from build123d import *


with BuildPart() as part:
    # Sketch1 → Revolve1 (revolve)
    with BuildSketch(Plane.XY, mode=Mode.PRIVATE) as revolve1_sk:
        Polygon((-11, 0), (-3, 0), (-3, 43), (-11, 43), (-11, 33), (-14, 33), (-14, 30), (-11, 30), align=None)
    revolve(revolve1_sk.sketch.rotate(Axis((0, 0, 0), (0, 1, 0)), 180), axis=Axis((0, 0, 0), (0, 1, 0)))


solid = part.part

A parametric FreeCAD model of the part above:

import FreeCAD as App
import Part
import Sketcher

V = App.Vector
Q = App.Units.Quantity

doc = App.newDocument("Part")
body = doc.addObject("PartDesign::Body", "Body")

sketch1 = body.newObject("Sketcher::SketchObject", "Sketch")
sketch1.AttachmentSupport = (doc.getObject("XY_Plane"), [""])
sketch1.MapMode = "FlatFace"
sketch1.addGeometry([
    Part.LineSegment(V(-11, 0, 0), V(-3, 0, 0)),
    Part.LineSegment(V(-3, 0, 0), V(-3, 43, 0)),
    Part.LineSegment(V(-3, 43, 0), V(-11, 43, 0)),
    Part.LineSegment(V(-11, 43, 0), V(-11, 33, 0)),
    Part.LineSegment(V(-11, 33, 0), V(-14, 33, 0)),
    Part.LineSegment(V(-14, 33, 0), V(-14, 30, 0)),
    Part.LineSegment(V(-14, 30, 0), V(-11, 30, 0)),
    Part.LineSegment(V(-11, 30, 0), V(-11, 0, 0)),
], False)
sketch1.addConstraint([
    Sketcher.Constraint("Coincident", 0, 2, 1, 1),
    Sketcher.Constraint("Coincident", 1, 2, 2, 1),
    Sketcher.Constraint("Coincident", 2, 2, 3, 1),
    Sketcher.Constraint("Coincident", 3, 2, 4, 1),
    Sketcher.Constraint("Coincident", 4, 2, 5, 1),
    Sketcher.Constraint("Coincident", 5, 2, 6, 1),
    Sketcher.Constraint("Coincident", 6, 2, 7, 1),
    Sketcher.Constraint("Coincident", 7, 2, 0, 1),
    Sketcher.Constraint("Horizontal", 0),
    Sketcher.Constraint("Vertical", 1),
    Sketcher.Constraint("Horizontal", 2),
    Sketcher.Constraint("Vertical", 3),
    Sketcher.Constraint("Horizontal", 4),
    Sketcher.Constraint("Vertical", 5),
    Sketcher.Constraint("Horizontal", 6),
    Sketcher.Constraint("Vertical", 7),
    Sketcher.Constraint("PointOnObject", 0, 2, -1),
    Sketcher.Constraint("Vertical", 3, 2, 6, 2),
    Sketcher.Constraint("Equal", 6, 5),
    Sketcher.Constraint("DistanceX", 0, 1, 0, 2, Q("8 mm")),
    Sketcher.Constraint("DistanceX", 4, 2, 4, 1, Q("3 mm")),
    Sketcher.Constraint("DistanceY", 1, 1, 1, 2, Q("43 mm")),
    Sketcher.Constraint("DistanceY", 3, 2, 3, 1, Q("10 mm")),
    Sketcher.Constraint("DistanceX", 0, 2, -1, 1, Q("3 mm")),
])
revolution = body.newObject("PartDesign::Revolution", "Revolution")
revolution.Profile = sketch1
revolution.ReferenceAxis = (sketch1, ["V_Axis"])
revolution.Angle = 360

doc.recompute()
